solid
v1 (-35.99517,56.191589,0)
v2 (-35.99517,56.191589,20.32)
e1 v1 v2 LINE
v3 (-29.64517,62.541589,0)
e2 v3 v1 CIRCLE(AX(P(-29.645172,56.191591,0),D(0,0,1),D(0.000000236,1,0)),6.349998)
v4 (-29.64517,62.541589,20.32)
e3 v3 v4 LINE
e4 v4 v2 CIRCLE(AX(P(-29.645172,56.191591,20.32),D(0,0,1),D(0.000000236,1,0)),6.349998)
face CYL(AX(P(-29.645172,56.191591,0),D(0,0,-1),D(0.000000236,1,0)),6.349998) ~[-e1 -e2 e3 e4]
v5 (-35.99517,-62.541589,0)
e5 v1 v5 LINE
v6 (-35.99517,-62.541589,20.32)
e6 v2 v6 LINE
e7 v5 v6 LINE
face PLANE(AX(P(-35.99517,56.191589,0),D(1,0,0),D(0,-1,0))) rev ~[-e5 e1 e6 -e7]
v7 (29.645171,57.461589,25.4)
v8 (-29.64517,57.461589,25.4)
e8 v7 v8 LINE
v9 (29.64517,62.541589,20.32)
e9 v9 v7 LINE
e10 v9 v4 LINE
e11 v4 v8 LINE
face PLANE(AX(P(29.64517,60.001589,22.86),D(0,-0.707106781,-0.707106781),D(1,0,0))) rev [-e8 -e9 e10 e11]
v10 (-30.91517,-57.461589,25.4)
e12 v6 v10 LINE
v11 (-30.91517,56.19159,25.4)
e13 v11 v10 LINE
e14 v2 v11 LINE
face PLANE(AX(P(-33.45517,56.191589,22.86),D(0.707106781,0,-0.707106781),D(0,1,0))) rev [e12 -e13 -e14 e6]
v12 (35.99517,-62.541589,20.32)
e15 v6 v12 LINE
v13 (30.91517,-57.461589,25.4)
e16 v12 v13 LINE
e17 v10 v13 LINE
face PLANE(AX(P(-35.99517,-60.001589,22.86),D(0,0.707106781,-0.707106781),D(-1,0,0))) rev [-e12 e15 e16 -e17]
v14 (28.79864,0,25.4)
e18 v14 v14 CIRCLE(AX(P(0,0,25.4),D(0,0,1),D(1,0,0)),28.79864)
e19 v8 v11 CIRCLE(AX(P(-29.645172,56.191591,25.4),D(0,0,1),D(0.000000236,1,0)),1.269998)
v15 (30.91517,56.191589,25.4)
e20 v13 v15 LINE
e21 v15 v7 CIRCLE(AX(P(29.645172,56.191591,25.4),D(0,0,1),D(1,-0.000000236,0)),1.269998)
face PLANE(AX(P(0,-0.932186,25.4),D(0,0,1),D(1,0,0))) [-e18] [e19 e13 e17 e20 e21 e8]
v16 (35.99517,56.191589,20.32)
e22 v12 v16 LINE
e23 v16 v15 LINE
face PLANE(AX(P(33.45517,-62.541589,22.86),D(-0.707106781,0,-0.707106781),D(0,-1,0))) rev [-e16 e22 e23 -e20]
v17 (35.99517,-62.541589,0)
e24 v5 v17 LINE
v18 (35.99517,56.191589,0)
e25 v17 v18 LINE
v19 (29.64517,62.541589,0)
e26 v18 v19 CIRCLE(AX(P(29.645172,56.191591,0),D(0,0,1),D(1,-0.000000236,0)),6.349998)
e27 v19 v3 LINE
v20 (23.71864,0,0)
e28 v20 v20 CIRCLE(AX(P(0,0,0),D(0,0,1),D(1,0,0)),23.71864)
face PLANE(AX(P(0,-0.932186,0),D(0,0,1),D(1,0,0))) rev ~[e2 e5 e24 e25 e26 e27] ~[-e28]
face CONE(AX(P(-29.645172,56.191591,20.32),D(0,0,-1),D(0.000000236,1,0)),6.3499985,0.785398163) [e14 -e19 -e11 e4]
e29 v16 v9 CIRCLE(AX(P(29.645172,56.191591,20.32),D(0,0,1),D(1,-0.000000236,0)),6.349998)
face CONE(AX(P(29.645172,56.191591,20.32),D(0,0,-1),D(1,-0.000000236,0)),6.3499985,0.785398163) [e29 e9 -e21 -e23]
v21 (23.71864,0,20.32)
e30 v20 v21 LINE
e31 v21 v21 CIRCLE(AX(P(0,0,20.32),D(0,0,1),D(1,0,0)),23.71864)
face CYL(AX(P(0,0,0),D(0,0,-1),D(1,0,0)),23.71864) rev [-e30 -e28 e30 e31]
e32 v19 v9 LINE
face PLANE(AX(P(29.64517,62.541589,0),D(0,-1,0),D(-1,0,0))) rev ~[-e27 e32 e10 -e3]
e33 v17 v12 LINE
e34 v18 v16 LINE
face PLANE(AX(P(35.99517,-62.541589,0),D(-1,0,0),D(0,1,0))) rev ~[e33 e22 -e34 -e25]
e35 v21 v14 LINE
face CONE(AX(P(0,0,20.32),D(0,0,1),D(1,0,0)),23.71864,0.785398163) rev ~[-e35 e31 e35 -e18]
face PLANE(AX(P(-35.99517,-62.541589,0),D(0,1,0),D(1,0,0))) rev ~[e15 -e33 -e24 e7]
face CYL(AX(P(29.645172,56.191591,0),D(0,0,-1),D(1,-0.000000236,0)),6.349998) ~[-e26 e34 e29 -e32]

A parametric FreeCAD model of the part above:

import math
import FreeCAD as App
import Part
import Sketcher
Q = App.Units.Quantity


def edges_at(feature, points):
    """Names of the edges that pass closest to the given points."""
    edges = feature.Shape.Edges
    near = lambda p: min(range(len(edges)), key=lambda i: edges[i].distToShape(Part.Vertex(*p))[0])
    return sorted({f"Edge{near(p) + 1}" for p in points})

doc = App.newDocument("Part")
body = doc.addObject("PartDesign::Body", "Body")

# Sketch on XY plane
sketch1 = body.newObject("Sketcher::SketchObject", "Sketch")
sketch1.AttachmentSupport = (doc.getObject("XY_Plane"), [""])
sketch1.MapMode = "FlatFace"
sketch1.addGeometry([
    Part.LineSegment(App.Vector(-36, -63, 0), App.Vector(36, -63, 0)),  # 0
    Part.LineSegment(App.Vector(36, -63, 0), App.Vector(36, 56, 0)),  # 1
    Part.ArcOfCircle(Part.Circle(App.Vector(30, 56, 0), App.Vector(0, 0, 1), 6), math.radians(0), math.radians(90)),  # 2
    Part.LineSegment(App.Vector(30, 63, 0), App.Vector(-30, 63, 0)),  # 3
    Part.ArcOfCircle(Part.Circle(App.Vector(-30, 56, 0), App.Vector(0, 0, 1), 6), math.radians(90), math.radians(180)),  # 4
    Part.LineSegment(App.Vector(-36, 56, 0), App.Vector(-36, -63, 0)),  # 5
    Part.Circle(App.Vector(0, 0, 0), App.Vector(0, 0, 1), 24),  # 6
], False)
sketch1.addConstraint([
    Sketcher.Constraint("Coincident", 0, 2, 1, 1),
    Sketcher.Constraint("Tangent", 1, 2, 2, 1),
    Sketcher.Constraint("Tangent", 2, 2, 3, 1),
    Sketcher.Constraint("Tangent", 3, 2, 4, 1),
    Sketcher.Constraint("Tangent", 4, 2, 5, 1),
    Sketcher.Constraint("Coincident", 5, 2, 0, 1),
    Sketcher.Constraint("Horizontal", 0),
    Sketcher.Constraint("Vertical", 1),
    Sketcher.Constraint("Horizontal", 3),
    Sketcher.Constraint("Vertical", 5),
    Sketcher.Constraint("Coincident", 6, 3, -1, 1),
    Sketcher.Constraint("Equal", 2, 4),
    Sketcher.Constraint("Radius", 2, Q("0.2499999 in")),
    Sketcher.Constraint("Diameter", 6, 47.43728),
    Sketcher.Constraint("DistanceX", 0, 1, 0, 2, 71.99034),
    Sketcher.Constraint("DistanceY", 1, 1, 1, 2, 118.733178),
    Sketcher.Constraint("DistanceX", -1, 1, 2, 3, 29.645172),
    Sketcher.Constraint("DistanceY", -1, 1, 2, 3, 56.19159),
])
pad1 = body.newObject("PartDesign::Pad", "Pad")
pad1.Profile = sketch1
pad1.Length = Q("1 in")
doc.recompute()

chamfer = body.newObject("PartDesign::Chamfer", "Chamfer")
chamfer.Base = (pad1, edges_at(pad1, [
    (-35.995, -3.175, 25.4),
    (0, -62.542, 25.4),
    (35.995, -3.175, 25.4),
    (34.135, 60.682, 25.4),
    (0, 62.542, 25.4),
    (-34.135, 60.682, 25.4),
    (-23.719, 0, 25.4),
]))
chamfer.ChamferType = "Two distances"
chamfer.Size = Q("0.2 in")
chamfer.Size2 = Q("0.2 in")

doc.recompute()
